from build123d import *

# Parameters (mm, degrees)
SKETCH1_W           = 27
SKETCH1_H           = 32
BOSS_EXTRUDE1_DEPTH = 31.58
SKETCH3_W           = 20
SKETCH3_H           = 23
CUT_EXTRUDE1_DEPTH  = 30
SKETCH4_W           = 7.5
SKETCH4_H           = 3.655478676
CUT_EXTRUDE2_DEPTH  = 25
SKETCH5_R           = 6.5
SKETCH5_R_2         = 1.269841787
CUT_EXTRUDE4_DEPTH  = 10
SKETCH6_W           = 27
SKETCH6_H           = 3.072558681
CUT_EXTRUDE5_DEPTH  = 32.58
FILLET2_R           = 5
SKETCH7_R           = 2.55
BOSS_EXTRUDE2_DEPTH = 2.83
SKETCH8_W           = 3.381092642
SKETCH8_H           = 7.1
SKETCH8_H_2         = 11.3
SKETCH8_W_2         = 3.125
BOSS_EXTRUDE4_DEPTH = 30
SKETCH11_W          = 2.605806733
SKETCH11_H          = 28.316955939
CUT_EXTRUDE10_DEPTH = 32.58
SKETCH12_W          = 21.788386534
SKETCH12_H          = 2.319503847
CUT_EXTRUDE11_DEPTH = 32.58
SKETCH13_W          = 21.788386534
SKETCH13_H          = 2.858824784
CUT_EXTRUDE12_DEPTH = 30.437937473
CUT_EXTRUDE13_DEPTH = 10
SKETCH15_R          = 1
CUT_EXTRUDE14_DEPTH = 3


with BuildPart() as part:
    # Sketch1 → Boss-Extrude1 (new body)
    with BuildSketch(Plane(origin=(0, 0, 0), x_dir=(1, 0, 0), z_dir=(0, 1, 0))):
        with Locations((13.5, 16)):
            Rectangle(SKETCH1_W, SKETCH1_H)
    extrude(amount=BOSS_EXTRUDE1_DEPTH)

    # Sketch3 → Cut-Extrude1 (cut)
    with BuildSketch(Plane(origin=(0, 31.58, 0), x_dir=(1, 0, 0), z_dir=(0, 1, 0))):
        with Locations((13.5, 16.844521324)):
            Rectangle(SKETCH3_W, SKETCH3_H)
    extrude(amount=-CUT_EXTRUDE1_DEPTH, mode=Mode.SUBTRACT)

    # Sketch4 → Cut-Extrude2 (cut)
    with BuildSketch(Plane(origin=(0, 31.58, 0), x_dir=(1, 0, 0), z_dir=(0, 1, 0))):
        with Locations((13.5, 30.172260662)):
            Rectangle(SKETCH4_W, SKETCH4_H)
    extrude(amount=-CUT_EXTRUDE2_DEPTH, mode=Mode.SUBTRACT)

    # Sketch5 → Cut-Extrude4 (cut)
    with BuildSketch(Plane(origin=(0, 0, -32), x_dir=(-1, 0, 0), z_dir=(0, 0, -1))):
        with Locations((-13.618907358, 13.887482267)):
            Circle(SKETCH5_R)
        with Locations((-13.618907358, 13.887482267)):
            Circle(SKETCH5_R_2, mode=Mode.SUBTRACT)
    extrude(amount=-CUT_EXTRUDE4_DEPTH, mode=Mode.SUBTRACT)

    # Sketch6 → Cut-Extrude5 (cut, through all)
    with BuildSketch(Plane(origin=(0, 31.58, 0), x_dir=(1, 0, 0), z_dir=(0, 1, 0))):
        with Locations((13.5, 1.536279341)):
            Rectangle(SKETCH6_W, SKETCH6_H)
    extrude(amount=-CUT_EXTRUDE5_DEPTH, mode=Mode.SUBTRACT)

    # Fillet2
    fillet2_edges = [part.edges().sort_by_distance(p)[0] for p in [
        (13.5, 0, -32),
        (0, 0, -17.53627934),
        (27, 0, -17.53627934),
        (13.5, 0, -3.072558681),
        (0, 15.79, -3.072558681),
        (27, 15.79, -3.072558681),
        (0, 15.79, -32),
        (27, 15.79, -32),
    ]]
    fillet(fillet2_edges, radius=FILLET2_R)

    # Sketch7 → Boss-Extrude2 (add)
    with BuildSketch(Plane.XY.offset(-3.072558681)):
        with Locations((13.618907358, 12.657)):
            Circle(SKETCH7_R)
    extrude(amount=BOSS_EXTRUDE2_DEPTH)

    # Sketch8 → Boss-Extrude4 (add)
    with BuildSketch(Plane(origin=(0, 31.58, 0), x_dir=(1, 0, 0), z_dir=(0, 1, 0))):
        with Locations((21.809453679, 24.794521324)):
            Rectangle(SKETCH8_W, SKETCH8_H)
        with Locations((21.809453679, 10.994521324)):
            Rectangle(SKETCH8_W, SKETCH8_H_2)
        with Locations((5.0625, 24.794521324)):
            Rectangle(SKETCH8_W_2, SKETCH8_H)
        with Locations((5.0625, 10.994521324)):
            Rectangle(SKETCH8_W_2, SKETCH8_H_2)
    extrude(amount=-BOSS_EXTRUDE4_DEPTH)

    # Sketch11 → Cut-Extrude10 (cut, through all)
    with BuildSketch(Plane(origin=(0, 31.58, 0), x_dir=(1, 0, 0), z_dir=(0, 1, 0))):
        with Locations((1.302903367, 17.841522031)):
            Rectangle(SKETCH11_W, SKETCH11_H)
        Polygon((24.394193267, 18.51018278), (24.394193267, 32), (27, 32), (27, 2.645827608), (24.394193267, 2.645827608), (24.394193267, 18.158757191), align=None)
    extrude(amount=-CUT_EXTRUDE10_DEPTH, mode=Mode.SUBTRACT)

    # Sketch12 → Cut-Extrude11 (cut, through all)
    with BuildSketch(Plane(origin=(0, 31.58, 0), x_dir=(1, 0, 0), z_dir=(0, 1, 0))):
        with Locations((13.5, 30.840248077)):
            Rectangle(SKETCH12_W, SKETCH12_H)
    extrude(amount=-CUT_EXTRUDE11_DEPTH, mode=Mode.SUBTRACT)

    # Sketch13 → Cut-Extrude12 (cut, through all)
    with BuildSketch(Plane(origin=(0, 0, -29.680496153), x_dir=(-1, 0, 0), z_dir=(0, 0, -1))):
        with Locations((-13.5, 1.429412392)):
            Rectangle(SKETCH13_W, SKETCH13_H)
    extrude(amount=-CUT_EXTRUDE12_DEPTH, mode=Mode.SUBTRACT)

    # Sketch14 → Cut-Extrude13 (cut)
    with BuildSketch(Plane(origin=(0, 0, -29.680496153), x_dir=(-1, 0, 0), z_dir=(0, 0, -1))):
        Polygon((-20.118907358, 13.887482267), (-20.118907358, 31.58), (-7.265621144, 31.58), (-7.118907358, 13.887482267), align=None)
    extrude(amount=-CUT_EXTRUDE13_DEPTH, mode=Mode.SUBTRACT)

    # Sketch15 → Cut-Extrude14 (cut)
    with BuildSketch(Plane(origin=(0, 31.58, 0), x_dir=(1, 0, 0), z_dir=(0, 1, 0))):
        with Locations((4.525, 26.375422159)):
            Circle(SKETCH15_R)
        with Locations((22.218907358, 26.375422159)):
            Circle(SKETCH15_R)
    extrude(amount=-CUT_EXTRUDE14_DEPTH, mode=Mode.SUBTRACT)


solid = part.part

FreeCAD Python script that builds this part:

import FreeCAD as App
import Part
import Sketcher

V = App.Vector


def edges_at(feature, points):
    """Names of the edges that pass closest to the given points."""
    edges = feature.Shape.Edges
    near = lambda p: min(range(len(edges)), key=lambda i: edges[i].distToShape(Part.Vertex(*p))[0])
    return sorted({f"Edge{near(p) + 1}" for p in points})

doc = App.newDocument("Part")
body = doc.addObject("PartDesign::Body", "Body")

# Sketch on XZ plane
sketch1 = doc.addObject("Sketcher::SketchObject", "Sketch")
body.addObject(sketch1)
sketch1.AttachmentSupport = (doc.XZ_Plane, [""])
sketch1.MapMode = "FlatFace"
sketch1.addGeometry([
    Part.LineSegment(V(0, -32, 0), V(0, 0, 0)),
    Part.LineSegment(V(0, 0, 0), V(27, 0, 0)),
    Part.LineSegment(V(27, 0, 0), V(27, -32, 0)),
    Part.LineSegment(V(27, -32, 0), V(0, -32, 0)),
], False)
sketch1.addConstraint([
    Sketcher.Constraint("Coincident", 0, 2, 1, 1),
    Sketcher.Constraint("Coincident", 1, 2, 2, 1),
    Sketcher.Constraint("Coincident", 2, 2, 3, 1),
    Sketcher.Constraint("Coincident", 3, 2, 0, 1),
    Sketcher.Constraint("Vertical", 0),
    Sketcher.Constraint("Horizontal", 1),
    Sketcher.Constraint("Vertical", 2),
    Sketcher.Constraint("Horizontal", 3),
    Sketcher.Constraint("Coincident", 0, 2, -1, 1),
    Sketcher.Constraint("DistanceX", 1, 1, 1, 2, 27.0),
    Sketcher.Constraint("DistanceY", 0, 1, 0, 2, 32.0),
])
pad1 = doc.addObject("PartDesign::Pad", "Pad")
body.addObject(pad1)
pad1.Profile = sketch1
pad1.Length = 31.58
pad1.Reversed = True

# Sketch on XZ plane
sketch2 = doc.addObject("Sketcher::SketchObject", "Sketch001")
body.addObject(sketch2)
sketch2.AttachmentSupport = (doc.XZ_Plane, [""])
sketch2.MapMode = "FlatFace"
sketch2.AttachmentOffset = App.Placement(V(0, 0, -31.58), App.Rotation())
sketch2.addGeometry([
    Part.LineSegment(V(4, -28, 0), V(4, -5, 0)),
    Part.LineSegment(V(4, -5, 0), V(24, -5, 0)),
    Part.LineSegment(V(24, -5, 0), V(24, -28, 0)),
    Part.LineSegment(V(24, -28, 0), V(4, -28, 0)),
], False)
sketch2.addConstraint([
    Sketcher.Constraint("Coincident", 0, 2, 1, 1),
    Sketcher.Constraint("Coincident", 1, 2, 2, 1),
    Sketcher.Constraint("Coincident", 2, 2, 3, 1),
    Sketcher.Constraint("Coincident", 3, 2, 0, 1),
    Sketcher.Constraint("Vertical", 0),
    Sketcher.Constraint("Horizontal", 1),
    Sketcher.Constraint("Vertical", 2),
    Sketcher.Constraint("Horizontal", 3),
    Sketcher.Constraint("DistanceX", 1, 1, 1, 2, 20.0),
    Sketcher.Constraint("DistanceY", 0, 1, 0, 2, 23.0),
    Sketcher.Constraint("DistanceX", -1, 1, 0, 2, 3.5),
    Sketcher.Constraint("DistanceY", 0, 2, -1, 1, 5.344521),
])
pocket1 = doc.addObject("PartDesign::Pocket", "Pocket")
body.addObject(pocket1)
pocket1.Profile = sketch2
pocket1.Length = 30
pocket1.Reversed = True

# Sketch on XZ plane
sketch3 = doc.addObject("Sketcher::SketchObject", "Sketch002")
body.addObject(sketch3)
sketch3.AttachmentSupport = (doc.XZ_Plane, [""])
sketch3.MapMode = "FlatFace"
sketch3.AttachmentOffset = App.Placement(V(0, 0, -31.58), App.Rotation())
sketch3.addGeometry([
    Part.LineSegment(V(9.8, -32, 0), V(9.8, -28.3, 0)),
    Part.LineSegment(V(9.8, -28.3, 0), V(17.2, -28.3, 0)),
    Part.LineSegment(V(17.2, -28.3, 0), V(17.2, -32, 0)),
    Part.LineSegment(V(17.2, -32, 0), V(9.8, -32, 0)),
], False)
sketch3.addConstraint([
    Sketcher.Constraint("Coincident", 0, 2, 1, 1),
    Sketcher.Constraint("Coincident", 1, 2, 2, 1),
    Sketcher.Constraint("Coincident", 2, 2, 3, 1),
    Sketcher.Constraint("Coincident", 3, 2, 0, 1),
    Sketcher.Constraint("Vertical", 0),
    Sketcher.Constraint("Horizontal", 1),
    Sketcher.Constraint("Vertical", 2),
    Sketcher.Constraint("Horizontal", 3),
    Sketcher.Constraint("DistanceX", 1, 1, 1, 2, 7.5),
    Sketcher.Constraint("DistanceY", 2, 2, -1, 1, 32.0),
    Sketcher.Constraint("DistanceX", -1, 1, 0, 2, 9.75),
    Sketcher.Constraint("DistanceY", 0, 1, 0, 2, 3.655479),
])
pocket2 = doc.addObject("PartDesign::Pocket", "Pocket001")
body.addObject(pocket2)
pocket2.Profile = sketch3
pocket2.Length = 25
pocket2.Reversed = True

# Sketch on XY plane
sketch4 = doc.addObject("Sketcher::SketchObject", "Sketch003")
body.addObject(sketch4)
sketch4.AttachmentSupport = (doc.XY_Plane, [""])
sketch4.MapMode = "FlatFace"
sketch4.AttachmentOffset = App.Placement(V(0, 0, -32), App.Rotation())
sketch4.addGeometry([
    Part.Circle(V(13.6, 13.9, 0), V(0, 0, 1), 6.5),
    Part.Circle(V(13.6, 13.9, 0), V(0, 0, 1), 1.3),
], False)
sketch4.addConstraint([
    Sketcher.Constraint("Coincident", 1, 3, 0, 3),
    Sketcher.Constraint("Diameter", 0, 13.0),
    Sketcher.Constraint("Diameter", 1, 2.539684),
    Sketcher.Constraint("DistanceX", -1, 1, 0, 3, 13.618907),
    Sketcher.Constraint("DistanceY", -1, 1, 0, 3, 13.887482),
])
pocket3 = doc.addObject("PartDesign::Pocket", "Pocket002")
body.addObject(pocket3)
pocket3.Profile = sketch4
pocket3.Length = 10
pocket3.Reversed = True

# Sketch on XZ plane
sketch5 = doc.addObject("Sketcher::SketchObject", "Sketch004")
body.addObject(sketch5)
sketch5.AttachmentSupport = (doc.XZ_Plane, [""])
sketch5.MapMode = "FlatFace"
sketch5.AttachmentOffset = App.Placement(V(0, 0, -31.58), App.Rotation())
sketch5.addGeometry([
    Part.LineSegment(V(0, -3.1, 0), V(0, 0, 0)),
    Part.LineSegment(V(0, 0, 0), V(27, 0, 0)),
    Part.LineSegment(V(27, 0, 0), V(27, -3.1, 0)),
    Part.LineSegment(V(27, -3.1, 0), V(0, -3.1, 0)),
], False)
sketch5.addConstraint([
    Sketcher.Constraint("Coincident", 0, 2, 1, 1),
    Sketcher.Constraint("Coincident", 1, 2, 2, 1),
    Sketcher.Constraint("Coincident", 2, 2, 3, 1),
    Sketcher.Constraint("Coincident", 3, 2, 0, 1),
    Sketcher.Constraint("Vertical", 0),
    Sketcher.Constraint("Horizontal", 1),
    Sketcher.Constraint("Vertical", 2),
    Sketcher.Constraint("Horizontal", 3),
    Sketcher.Constraint("Coincident", 0, 2, -1, 1),
    Sketcher.Constraint("DistanceX", 1, 1, 1, 2, 27.0),
    Sketcher.Constraint("DistanceY", 0, 1, 0, 2, 3.072559),
])
pocket4 = doc.addObject("PartDesign::Pocket", "Pocket003")
body.addObject(pocket4)
pocket4.Profile = sketch5
pocket4.Type = "ThroughAll"
pocket4.Reversed = True
doc.recompute()

fillet = doc.addObject("PartDesign::Fillet", "Fillet")
body.addObject(fillet)
fillet.Base = (pocket4, edges_at(pocket4, [
    (13.5, 0, -32),
    (0, 0, -17.536),
    (27, 0, -17.536),
    (13.5, 0, -3.073),
    (0, 15.79, -3.073),
    (27, 15.79, -3.073),
    (0, 15.79, -32),
    (27, 15.79, -32),
]))
fillet.Radius = 5

# Sketch on XY plane
sketch6 = doc.addObject("Sketcher::SketchObject", "Sketch005")
body.addObject(sketch6)
sketch6.AttachmentSupport = (doc.XY_Plane, [""])
sketch6.MapMode = "FlatFace"
sketch6.AttachmentOffset = App.Placement(V(0, 0, -3.072559), App.Rotation())
sketch6.addGeometry(Part.Circle(V(13.6, 12.7, 0), V(0, 0, 1), 2.5), False)
sketch6.addConstraint([
    Sketcher.Constraint("Diameter", 0, 5.1),
    Sketcher.Constraint("DistanceY", -1, 1, 0, 3, 12.657),
    Sketcher.Constraint("DistanceX", -1, 1, 0, 3, 13.618907),
])
pad2 = doc.addObject("PartDesign::Pad", "Pad001")
body.addObject(pad2)
pad2.Profile = sketch6
pad2.Length = 2.83

# Sketch on XZ plane
sketch7 = doc.addObject("Sketcher::SketchObject", "Sketch006")
body.addObject(sketch7)
sketch7.AttachmentSupport = (doc.XZ_Plane, [""])
sketch7.MapMode = "FlatFace"
sketch7.AttachmentOffset = App.Placement(V(0, 0, -31.58), App.Rotation())
sketch7.addGeometry([
    Part.LineSegment(V(20.1, -28.3, 0), V(20.1, -21.2, 0)),  # 0
    Part.LineSegment(V(20.1, -21.2, 0), V(23.5, -21.2, 0)),  # 1
    Part.LineSegment(V(23.5, -21.2, 0), V(23.5, -28.3, 0)),  # 2
    Part.LineSegment(V(23.5, -28.3, 0), V(20.1, -28.3, 0)),  # 3
    Part.LineSegment(V(20.1, -16.6, 0), V(20.1, -5.3, 0)),  # 4
    Part.LineSegment(V(20.1, -5.3, 0), V(23.5, -5.3, 0)),  # 5
    Part.LineSegment(V(23.5, -5.3, 0), V(23.5, -16.6, 0)),  # 6
    Part.LineSegment(V(23.5, -16.6, 0), V(20.1, -16.6, 0)),  # 7
    Part.LineSegment(V(3.5, -28.3, 0), V(3.5, -21.2, 0)),  # 8
    Part.LineSegment(V(3.5, -21.2, 0), V(6.6, -21.2, 0)),  # 9
    Part.LineSegment(V(6.6, -21.2, 0), V(6.6, -28.3, 0)),  # 10
    Part.LineSegment(V(6.6, -28.3, 0), V(3.5, -28.3, 0)),  # 11
    Part.LineSegment(V(3.5, -16.6, 0), V(3.5, -5.3, 0)),  # 12
    Part.LineSegment(V(3.5, -5.3, 0), V(6.6, -5.3, 0)),  # 13
    Part.LineSegment(V(6.6, -5.3, 0), V(6.6, -16.6, 0)),  # 14
    Part.LineSegment(V(6.6, -16.6, 0), V(3.5, -16.6, 0)),  # 15
], False)
sketch7.addConstraint([
    Sketcher.Constraint("Coincident", 0, 2, 1, 1),
    Sketcher.Constraint("Coincident", 1, 2, 2, 1),
    Sketcher.Constraint("Coincident", 2, 2, 3, 1),
    Sketcher.Constraint("Coincident", 3, 2, 0, 1),
    Sketcher.Constraint("Coincident", 4, 2, 5, 1),
    Sketcher.Constraint("Coincident", 5, 2, 6, 1),
    Sketcher.Constraint("Coincident", 6, 2, 7, 1),
    Sketcher.Constraint("Coincident", 7, 2, 4, 1),
    Sketcher.Constraint("Coincident", 8, 2, 9, 1),
    Sketcher.Constraint("Coincident", 9, 2, 10, 1),
    Sketcher.Constraint("Coincident", 10, 2, 11, 1),
    Sketcher.Constraint("Coincident", 11, 2, 8, 1),
    Sketcher.Constraint("Coincident", 12, 2, 13, 1),
    Sketcher.Constraint("Coincident", 13, 2, 14, 1),
    Sketcher.Constraint("Coincident", 14, 2, 15, 1),
    Sketcher.Constraint("Coincident", 15, 2, 12, 1),
    Sketcher.Constraint("Vertical", 0),
    Sketcher.Constraint("Horizontal", 1),
    Sketcher.Constraint("Vertical", 2),
    Sketcher.Constraint("Horizontal", 3),
    Sketcher.Constraint("Vertical", 4),
    Sketcher.Constraint("Horizontal", 5),
    Sketcher.Constraint("Vertical", 6),
    Sketcher.Constraint("Horizontal", 7),
    Sketcher.Constraint("Vertical", 8),
    Sketcher.Constraint("Horizontal", 9),
    Sketcher.Constraint("Vertical", 10),
    Sketcher.Constraint("Horizontal", 11),
    Sketcher.Constraint("Vertical", 12),
    Sketcher.Constraint("Horizontal", 13),
    Sketcher.Constraint("Vertical", 14),
    Sketcher.Constraint("Horizontal", 15),
    Sketcher.Constraint("Horizontal", 1, 2, 8, 2),
    Sketcher.Constraint("Horizontal", 3, 2, 10, 2),
    Sketcher.Constraint("Horizontal", 5, 2, 12, 2),
    Sketcher.Constraint("Horizontal", 7, 2, 14, 2),
    Sketcher.Constraint("Vertical", 3, 2, 4, 2),
    Sketcher.Constraint("Vertical", 2, 2, 5, 2),
    Sketcher.Constraint("Vertical", 11, 2, 12, 2),
    Sketcher.Constraint("Vertical", 10, 2, 13, 2),
    Sketcher.Constraint("DistanceY", 0, 1, 0, 2, 7.1),
    Sketcher.Constraint("DistanceY", 4, 1, 4, 2, 11.3),
    Sketcher.Constraint("DistanceY", 3, 2, 4, 2, 23.0),
    Sketcher.Constraint("DistanceX", 8, 2, 1, 2, 20.0),
    Sketcher.Constraint("DistanceX", -1, 1, 1, 2, 23.5),
    Sketcher.Constraint("DistanceX", 9, 1, 9, 2, 3.125),
    Sketcher.Constraint("DistanceX", 1, 1, 1, 2, 3.381093),
    Sketcher.Constraint("DistanceY", 0, 2, -1, 1, 21.244521),
])
pad3 = doc.addObject("PartDesign::Pad", "Pad002")
body.addObject(pad3)
pad3.Profile = sketch7
pad3.Length = 30

# Sketch on XZ plane
sketch8 = doc.addObject("Sketcher::SketchObject", "Sketch007")
body.addObject(sketch8)
sketch8.AttachmentSupport = (doc.XZ_Plane, [""])
sketch8.MapMode = "FlatFace"
sketch8.AttachmentOffset = App.Placement(V(0, 0, -31.58), App.Rotation())
sketch8.addGeometry([
    Part.LineSegment(V(0, -32, 0), V(0, -3.7, 0)),  # 0
    Part.LineSegment(V(0, -3.7, 0), V(2.6, -3.7, 0)),  # 1
    Part.LineSegment(V(2.6, -3.7, 0), V(2.6, -32, 0)),  # 2
    Part.LineSegment(V(2.6, -32, 0), V(0, -32, 0)),  # 3
    Part.LineSegment(V(24.4, -32, 0), V(24.4, -2.6, 0)),  # 4
    Part.LineSegment(V(24.4, -2.6, 0), V(27, -2.6, 0)),  # 5
    Part.LineSegment(V(27, -2.6, 0), V(27, -32, 0)),  # 6
    Part.LineSegment(V(27, -32, 0), V(24.4, -32, 0)),  # 7
], False)
sketch8.addConstraint([
    Sketcher.Constraint("Coincident", 0, 2, 1, 1),
    Sketcher.Constraint("Coincident", 1, 2, 2, 1),
    Sketcher.Constraint("Coincident", 2, 2, 3, 1),
    Sketcher.Constraint("Coincident", 3, 2, 0, 1),
    Sketcher.Constraint("Coincident", 4, 2, 5, 1),
    Sketcher.Constraint("Coincident", 5, 2, 6, 1),
    Sketcher.Constraint("Coincident", 6, 2, 7, 1),
    Sketcher.Constraint("Coincident", 7, 2, 4, 1),
    Sketcher.Constraint("Vertical", 0),
    Sketcher.Constraint("Horizontal", 1),
    Sketcher.Constraint("Vertical", 2),
    Sketcher.Constraint("Horizontal", 3),
    Sketcher.Constraint("Vertical", 4),
    Sketcher.Constraint("Horizontal", 5),
    Sketcher.Constraint("Vertical", 6),
    Sketcher.Constraint("Horizontal", 7),
    Sketcher.Constraint("PointOnObject", 0, 2, -2),
    Sketcher.Constraint("Horizontal", 3, 2, 6, 2),
    Sketcher.Constraint("Equal", 3, 5),
    Sketcher.Constraint("DistanceY", 2, 2, -1, 1, 32.0),
    Sketcher.Constraint("DistanceX", -1, 1, 5, 2, 27.0),
    Sketcher.Constraint("DistanceX", 1, 1, 1, 2, 2.605807),
    Sketcher.Constraint("DistanceY", 0, 1, 0, 2, 28.316956),
    Sketcher.Constraint("DistanceY", 4, 1, 4, 2, 29.354172),
])
pocket5 = doc.addObject("PartDesign::Pocket", "Pocket004")
body.addObject(pocket5)
pocket5.Profile = sketch8
pocket5.Type = "ThroughAll"
pocket5.Reversed = True

# Sketch on XZ plane
sketch9 = doc.addObject("Sketcher::SketchObject", "Sketch008")
body.addObject(sketch9)
sketch9.AttachmentSupport = (doc.XZ_Plane, [""])
sketch9.MapMode = "FlatFace"
sketch9.AttachmentOffset = App.Placement(V(0, 0, -31.58), App.Rotation())
sketch9.addGeometry([
    Part.LineSegment(V(2.6, -32, 0), V(2.6, -29.7, 0)),
    Part.LineSegment(V(2.6, -29.7, 0), V(24.4, -29.7, 0)),
    Part.LineSegment(V(24.4, -29.7, 0), V(24.4, -32, 0)),
    Part.LineSegment(V(24.4, -32, 0), V(2.6, -32, 0)),
], False)
sketch9.addConstraint([
    Sketcher.Constraint("Coincident", 0, 2, 1, 1),
    Sketcher.Constraint("Coincident", 1, 2, 2, 1),
    Sketcher.Constraint("Coincident", 2, 2, 3, 1),
    Sketcher.Constraint("Coincident", 3, 2, 0, 1),
    Sketcher.Constraint("Vertical", 0),
    Sketcher.Constraint("Horizontal", 1),
    Sketcher.Constraint("Vertical", 2),
    Sketcher.Constraint("Horizontal", 3),
    Sketcher.Constraint("DistanceY", 2, 2, -1, 1, 32.0),
    Sketcher.Constraint("DistanceX", 1, 1, 1, 2, 21.788387),
    Sketcher.Constraint("DistanceY", 0, 1, 0, 2, 2.319504),
    Sketcher.Constraint("DistanceX", -1, 1, 0, 2, 2.605807),
])
pocket6 = doc.addObject("PartDesign::Pocket", "Pocket005")
body.addObject(pocket6)
pocket6.Profile = sketch9
pocket6.Type = "ThroughAll"
pocket6.Reversed = True

# Sketch on XY plane
sketch10 = doc.addObject("Sketcher::SketchObject", "Sketch009")
body.addObject(sketch10)
sketch10.AttachmentSupport = (doc.XY_Plane, [""])
sketch10.MapMode = "FlatFace"
sketch10.AttachmentOffset = App.Placement(V(0, 0, -29.680496), App.Rotation())
sketch10.addGeometry([
    Part.LineSegment(V(24.4, 2.9, 0), V(24.4, 0, 0)),
    Part.LineSegment(V(24.4, 0, 0), V(2.6, 0, 0)),
    Part.LineSegment(V(2.6, 0, 0), V(2.6, 2.9, 0)),
    Part.LineSegment(V(2.6, 2.9, 0), V(24.4, 2.9, 0)),
], False)
sketch10.addConstraint([
    Sketcher.Constraint("Coincident", 0, 2, 1, 1),
    Sketcher.Constraint("Coincident", 1, 2, 2, 1),
    Sketcher.Constraint("Coincident", 2, 2, 3, 1),
    Sketcher.Constraint("Coincident", 3, 2, 0, 1),
    Sketcher.Constraint("Vertical", 0),
    Sketcher.Constraint("Horizontal", 1),
    Sketcher.Constraint("Vertical", 2),
    Sketcher.Constraint("Horizontal", 3),
    Sketcher.Constraint("PointOnObject", 0, 2, -1),
    Sketcher.Constraint("DistanceX", 1, 2, 1, 1, 21.788387),
    Sketcher.Constraint("DistanceY", 0, 2, 0, 1, 2.858825),
    Sketcher.Constraint("DistanceX", -1, 1, 0, 2, 24.394193),
])
pocket7 = doc.addObject("PartDesign::Pocket", "Pocket006")
body.addObject(pocket7)
pocket7.Profile = sketch10
pocket7.Type = "ThroughAll"
pocket7.Reversed = True

# Sketch on XY plane
sketch11 = doc.addObject("Sketcher::SketchObject", "Sketch010")
body.addObject(sketch11)
sketch11.AttachmentSupport = (doc.XY_Plane, [""])
sketch11.MapMode = "FlatFace"
sketch11.AttachmentOffset = App.Placement(V(0, 0, -29.680496), App.Rotation())
sketch11.addGeometry([
    Part.LineSegment(V(20, 32, 0), V(20, 14, 0)),
    Part.LineSegment(V(20, 14, 0), V(7, 14, 0)),
    Part.LineSegment(V(7, 14, 0), V(7, 32, 0)),
    Part.LineSegment(V(7, 32, 0), V(20, 32, 0)),
], False)
sketch11.addConstraint([
    Sketcher.Constraint("Coincident", 0, 2, 1, 1),
    Sketcher.Constraint("Coincident", 1, 2, 2, 1),
    Sketcher.Constraint("Coincident", 2, 2, 3, 1),
    Sketcher.Constraint("Coincident", 3, 2, 0, 1),
    Sketcher.Constraint("Vertical", 0),
    Sketcher.Constraint("Horizontal", 1),
    Sketcher.Constraint("Horizontal", 3),
    Sketcher.Constraint("DistanceX", 1, 2, 1, 1, 13.0),
    Sketcher.Constraint("DistanceY", -1, 1, 2, 2, 31.58),
    Sketcher.Constraint("DistanceX", 3, 1, 3, 2, 12.853286),
    Sketcher.Constraint("DistanceY", 0, 2, 0, 1, 17.692518),
    Sketcher.Constraint("DistanceX", -1, 1, 2, 2, 7.265621),
])
pocket8 = doc.addObject("PartDesign::Pocket", "Pocket007")
body.addObject(pocket8)
pocket8.Profile = sketch11
pocket8.Length = 10
pocket8.Reversed = True

# Sketch on XZ plane
sketch12 = doc.addObject("Sketcher::SketchObject", "Sketch011")
body.addObject(sketch12)
sketch12.AttachmentSupport = (doc.XZ_Plane, [""])
sketch12.MapMode = "FlatFace"
sketch12.AttachmentOffset = App.Placement(V(0, 0, -31.58), App.Rotation())
sketch12.addGeometry([
    Part.Circle(V(4.5, -26.4, 0), V(0, 0, 1), 1),
    Part.Circle(V(22.2, -26.4, 0), V(0, 0, 1), 1),
], False)
sketch12.addConstraint([
    Sketcher.Constraint("Equal", 0, 1),
    Sketcher.Constraint("Horizontal", 0, 3, 1, 3),
    Sketcher.Constraint("Diameter", 0, 2.0),
    Sketcher.Constraint("DistanceX", -1, 1, 0, 3, 4.525),
    Sketcher.Constraint("DistanceY", 0, 3, -1, 1, 26.375422),
    Sketcher.Constraint("DistanceX", -1, 1, 1, 3, 22.218907),
])
pocket9 = doc.addObject("PartDesign::Pocket", "Pocket008")
body.addObject(pocket9)
pocket9.Profile = sketch12
pocket9.Length = 3
pocket9.Reversed = True

doc.recompute()
